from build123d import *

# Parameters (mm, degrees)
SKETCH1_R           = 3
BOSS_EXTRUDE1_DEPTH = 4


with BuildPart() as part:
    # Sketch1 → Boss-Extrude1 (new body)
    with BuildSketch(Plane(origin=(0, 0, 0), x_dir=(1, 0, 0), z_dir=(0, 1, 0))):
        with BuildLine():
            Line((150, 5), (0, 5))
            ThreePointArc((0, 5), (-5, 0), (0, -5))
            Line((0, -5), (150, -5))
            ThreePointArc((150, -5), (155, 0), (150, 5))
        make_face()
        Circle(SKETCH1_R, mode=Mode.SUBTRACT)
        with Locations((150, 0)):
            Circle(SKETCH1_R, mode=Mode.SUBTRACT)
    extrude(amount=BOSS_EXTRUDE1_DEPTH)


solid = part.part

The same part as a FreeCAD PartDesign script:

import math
import FreeCAD as App
import Part
import Sketcher

V = App.Vector

doc = App.newDocument("Part")
params = doc.addObject("Spreadsheet::Sheet", "Params")
for row, (alias, value) in enumerate([
    ("sketch1_diameter", "6 mm"),
    ("sketch1_radius", "5 mm"),
    ("sketch1_width", "150 mm"),
    ("pad1_length", "4 mm"),
], start=1):
    params.set(f"A{row}", alias)
    params.set(f"B{row}", "=" + value)
    params.setAlias(f"B{row}", alias)

body = doc.addObject("PartDesign::Body", "Body")

# Sketch on XZ plane
sketch1 = body.newObject("Sketcher::SketchObject", "Sketch")
sketch1.AttachmentSupport = (doc.getObject("XZ_Plane"), [""])
sketch1.MapMode = "FlatFace"
sketch1.addGeometry([
    Part.LineSegment(V(150, -5, 0), V(0, -5, 0)),  # 0
    Part.ArcOfCircle(Part.Circle(V(0, 0, 0), V(0, 0, 1), 5), math.radians(90), math.radians(270)),  # 1
    Part.LineSegment(V(0, 5, 0), V(150, 5, 0)),  # 2
    Part.ArcOfCircle(Part.Circle(V(150, 0, 0), V(0, 0, 1), 5), math.radians(-90), math.radians(90)),  # 3
    Part.Circle(V(0, 0, 0), V(0, 0, 1), 3),  # 4
    Part.Circle(V(150, 0, 0), V(0, 0, 1), 3),  # 5
], False)
sketch1.addConstraint([
    Sketcher.Constraint("Tangent", 0, 2, 1, 2),
    Sketcher.Constraint("Tangent", 1, 1, 2, 1),
    Sketcher.Constraint("Tangent", 2, 2, 3, 2),
    Sketcher.Constraint("Tangent", 3, 1, 0, 1),
    Sketcher.Constraint("Horizontal", 0),
    Sketcher.Constraint("Horizontal", 2),
    Sketcher.Constraint("Coincident", 1, 3, -1, 1),
    Sketcher.Constraint("Coincident", 4, 3, -1, 1),
    Sketcher.Constraint("Coincident", 5, 3, 3, 3),
    Sketcher.Constraint("Equal", 4, 5),
    Sketcher.Constraint("Diameter", 4, 6.0),
    Sketcher.Constraint("Radius", 1, 5.0),
    Sketcher.Constraint("DistanceX", 0, 2, 0, 1, 150.0),
])
sketch1.setExpression("Constraints[10]", "Params.sketch1_diameter")
sketch1.setExpression("Constraints[11]", "Params.sketch1_radius")
sketch1.setExpression("Constraints[12]", "Params.sketch1_width")
pad1 = body.newObject("PartDesign::Pad", "Pad")
pad1.Profile = sketch1
pad1.setExpression("Length", "Params.pad1_length")
pad1.Reversed = True

doc.recompute()
